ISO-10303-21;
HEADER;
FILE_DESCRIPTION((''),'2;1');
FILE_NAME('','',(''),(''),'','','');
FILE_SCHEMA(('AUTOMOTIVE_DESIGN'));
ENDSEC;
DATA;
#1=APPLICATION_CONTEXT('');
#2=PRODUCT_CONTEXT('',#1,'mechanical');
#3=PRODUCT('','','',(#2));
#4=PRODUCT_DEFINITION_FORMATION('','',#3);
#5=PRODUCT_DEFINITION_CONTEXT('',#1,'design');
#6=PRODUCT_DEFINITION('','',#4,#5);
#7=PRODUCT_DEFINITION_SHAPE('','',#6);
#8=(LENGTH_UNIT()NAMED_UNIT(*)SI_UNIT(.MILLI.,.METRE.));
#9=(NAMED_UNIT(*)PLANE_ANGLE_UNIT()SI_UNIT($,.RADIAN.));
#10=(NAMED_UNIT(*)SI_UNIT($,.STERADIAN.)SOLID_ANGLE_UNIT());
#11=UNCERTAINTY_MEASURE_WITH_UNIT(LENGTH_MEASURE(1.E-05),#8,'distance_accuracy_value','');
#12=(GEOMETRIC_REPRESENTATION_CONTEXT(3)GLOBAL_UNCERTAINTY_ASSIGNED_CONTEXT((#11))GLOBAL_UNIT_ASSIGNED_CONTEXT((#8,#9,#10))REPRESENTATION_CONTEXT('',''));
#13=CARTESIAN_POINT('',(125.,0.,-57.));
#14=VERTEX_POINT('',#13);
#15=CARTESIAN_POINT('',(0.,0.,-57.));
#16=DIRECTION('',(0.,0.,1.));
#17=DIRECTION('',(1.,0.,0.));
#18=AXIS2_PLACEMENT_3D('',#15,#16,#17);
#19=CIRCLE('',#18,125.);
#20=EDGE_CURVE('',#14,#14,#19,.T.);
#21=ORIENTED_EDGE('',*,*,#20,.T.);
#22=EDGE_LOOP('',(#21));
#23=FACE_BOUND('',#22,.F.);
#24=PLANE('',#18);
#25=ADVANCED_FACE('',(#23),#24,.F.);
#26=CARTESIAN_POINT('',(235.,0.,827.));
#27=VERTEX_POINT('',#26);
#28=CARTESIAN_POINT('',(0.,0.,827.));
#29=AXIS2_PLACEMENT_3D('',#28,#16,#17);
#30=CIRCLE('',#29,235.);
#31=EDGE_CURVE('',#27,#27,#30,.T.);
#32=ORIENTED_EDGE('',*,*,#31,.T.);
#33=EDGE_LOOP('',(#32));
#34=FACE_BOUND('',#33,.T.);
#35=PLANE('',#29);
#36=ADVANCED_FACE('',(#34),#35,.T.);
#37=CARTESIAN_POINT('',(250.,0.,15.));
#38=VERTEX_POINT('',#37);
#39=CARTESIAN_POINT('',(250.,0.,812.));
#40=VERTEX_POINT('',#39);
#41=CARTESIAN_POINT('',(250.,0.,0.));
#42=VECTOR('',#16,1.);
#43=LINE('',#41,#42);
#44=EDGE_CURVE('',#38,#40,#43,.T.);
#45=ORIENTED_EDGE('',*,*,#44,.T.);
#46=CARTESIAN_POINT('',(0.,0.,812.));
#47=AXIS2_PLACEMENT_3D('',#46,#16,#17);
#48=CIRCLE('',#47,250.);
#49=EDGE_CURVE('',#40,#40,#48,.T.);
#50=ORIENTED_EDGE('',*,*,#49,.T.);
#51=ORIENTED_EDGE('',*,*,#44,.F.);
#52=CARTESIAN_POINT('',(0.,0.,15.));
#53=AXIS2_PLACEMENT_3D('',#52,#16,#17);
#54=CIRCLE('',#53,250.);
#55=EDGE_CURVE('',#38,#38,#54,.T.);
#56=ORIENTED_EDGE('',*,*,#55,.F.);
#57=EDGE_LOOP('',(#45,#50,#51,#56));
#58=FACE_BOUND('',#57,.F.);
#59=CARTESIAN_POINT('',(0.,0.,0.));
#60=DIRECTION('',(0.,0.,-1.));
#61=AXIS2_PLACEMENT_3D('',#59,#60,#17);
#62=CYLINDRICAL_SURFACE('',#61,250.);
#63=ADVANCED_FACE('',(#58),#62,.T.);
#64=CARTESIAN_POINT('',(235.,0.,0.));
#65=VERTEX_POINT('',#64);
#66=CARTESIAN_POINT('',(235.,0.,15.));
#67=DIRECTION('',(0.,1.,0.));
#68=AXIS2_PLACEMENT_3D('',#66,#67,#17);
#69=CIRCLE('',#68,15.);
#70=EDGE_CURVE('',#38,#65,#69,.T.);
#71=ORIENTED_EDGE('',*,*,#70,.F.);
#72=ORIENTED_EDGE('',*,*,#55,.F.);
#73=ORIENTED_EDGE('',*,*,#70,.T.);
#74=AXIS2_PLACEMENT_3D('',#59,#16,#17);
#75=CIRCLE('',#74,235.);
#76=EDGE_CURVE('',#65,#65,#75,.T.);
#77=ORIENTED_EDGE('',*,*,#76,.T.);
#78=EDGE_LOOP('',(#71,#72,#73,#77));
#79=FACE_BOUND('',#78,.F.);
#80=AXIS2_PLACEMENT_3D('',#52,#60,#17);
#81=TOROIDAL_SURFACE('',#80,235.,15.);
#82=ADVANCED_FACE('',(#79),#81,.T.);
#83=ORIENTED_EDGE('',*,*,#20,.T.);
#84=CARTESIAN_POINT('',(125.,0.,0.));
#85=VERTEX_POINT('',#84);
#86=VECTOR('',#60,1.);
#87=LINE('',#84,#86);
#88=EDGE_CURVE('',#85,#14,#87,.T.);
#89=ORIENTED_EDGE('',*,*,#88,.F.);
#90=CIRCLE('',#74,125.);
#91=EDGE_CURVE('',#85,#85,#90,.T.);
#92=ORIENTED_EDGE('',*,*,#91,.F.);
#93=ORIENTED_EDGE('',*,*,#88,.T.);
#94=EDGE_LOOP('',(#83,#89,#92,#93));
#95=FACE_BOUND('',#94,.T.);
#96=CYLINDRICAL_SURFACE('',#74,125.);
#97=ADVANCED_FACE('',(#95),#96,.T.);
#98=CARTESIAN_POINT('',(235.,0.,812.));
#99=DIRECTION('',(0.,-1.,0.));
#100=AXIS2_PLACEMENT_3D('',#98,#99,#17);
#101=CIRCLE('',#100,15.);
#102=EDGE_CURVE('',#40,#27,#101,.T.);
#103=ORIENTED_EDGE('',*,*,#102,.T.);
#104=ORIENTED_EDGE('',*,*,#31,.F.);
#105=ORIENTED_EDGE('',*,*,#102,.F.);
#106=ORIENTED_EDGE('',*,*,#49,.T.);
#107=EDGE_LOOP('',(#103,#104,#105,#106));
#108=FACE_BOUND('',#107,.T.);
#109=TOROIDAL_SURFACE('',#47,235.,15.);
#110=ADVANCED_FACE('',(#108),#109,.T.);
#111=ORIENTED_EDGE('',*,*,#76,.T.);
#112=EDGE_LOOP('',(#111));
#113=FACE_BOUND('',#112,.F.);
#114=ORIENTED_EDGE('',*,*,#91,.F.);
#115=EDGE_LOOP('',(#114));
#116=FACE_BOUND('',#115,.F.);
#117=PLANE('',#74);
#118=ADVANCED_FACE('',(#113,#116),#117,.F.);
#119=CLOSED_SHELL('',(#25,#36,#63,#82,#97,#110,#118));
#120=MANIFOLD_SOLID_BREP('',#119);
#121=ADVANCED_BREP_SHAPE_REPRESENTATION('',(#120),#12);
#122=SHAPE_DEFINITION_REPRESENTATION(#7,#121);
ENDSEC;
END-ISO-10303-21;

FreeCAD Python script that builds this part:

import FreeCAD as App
import Part
import Sketcher
from FreeCAD import Vector


def edges_at(feature, points):
    """Names of the edges that pass closest to the given points."""
    edges = feature.Shape.Edges
    near = lambda p: min(range(len(edges)), key=lambda i: edges[i].distToShape(Part.Vertex(*p))[0])
    return sorted({f"Edge{near(p) + 1}" for p in points})

doc = App.newDocument("Part")
params = doc.addObject("Spreadsheet::Sheet", "Params")
for row, (alias, value) in enumerate([
    ("sketch1_diameter", "500 mm"),
    ("pad1_length", "827 mm"),
    ("sketch2_diameter", "250 mm"),
    ("pad2_length", "57 mm"),
    ("fillet_radius", "15 mm"),
], start=1):
    params.set(f"A{row}", alias)
    params.set(f"B{row}", "=" + value)
    params.setAlias(f"B{row}", alias)

body = doc.addObject("PartDesign::Body", "Body")

# Sketch on XY plane
sketch1 = body.newObject("Sketcher::SketchObject", "Sketch")
sketch1.AttachmentSupport = (doc.getObject("XY_Plane"), [""])
sketch1.MapMode = "FlatFace"
sketch1.addGeometry(Part.Circle(Vector(0, 0, 0), Vector(0, 0, 1), 250), False)
sketch1.addConstraint(Sketcher.Constraint("Coincident", 0, 3, -1, 1))
sketch1.addConstraint(Sketcher.Constraint("Diameter", 0, 500.0))
sketch1.setExpression("Constraints[1]", "Params.sketch1_diameter")
pad1 = body.newObject("PartDesign::Pad", "Pad")
pad1.Profile = sketch1
pad1.setExpression("Length", "Params.pad1_length")

# Sketch on XY plane
sketch2 = body.newObject("Sketcher::SketchObject", "Sketch001")
sketch2.AttachmentSupport = (doc.getObject("XY_Plane"), [""])
sketch2.MapMode = "FlatFace"
sketch2.addGeometry(Part.Circle(Vector(0, 0, 0), Vector(0, 0, 1), 125), False)
sketch2.addConstraint(Sketcher.Constraint("Coincident", 0, 3, -1, 1))
sketch2.addConstraint(Sketcher.Constraint("Diameter", 0, 250.0))
sketch2.setExpression("Constraints[1]", "Params.sketch2_diameter")
pad2 = body.newObject("PartDesign::Pad", "Pad001")
pad2.Profile = sketch2
pad2.setExpression("Length", "Params.pad2_length")
pad2.Reversed = True
doc.recompute()

fillet = body.newObject("PartDesign::Fillet", "Fillet")
fillet.Base = (pad2, edges_at(pad2, [(-250, 0, 827), (-250, 0, 0)]))
fillet.setExpression("Radius", "Params.fillet_radius")

doc.recompute()
